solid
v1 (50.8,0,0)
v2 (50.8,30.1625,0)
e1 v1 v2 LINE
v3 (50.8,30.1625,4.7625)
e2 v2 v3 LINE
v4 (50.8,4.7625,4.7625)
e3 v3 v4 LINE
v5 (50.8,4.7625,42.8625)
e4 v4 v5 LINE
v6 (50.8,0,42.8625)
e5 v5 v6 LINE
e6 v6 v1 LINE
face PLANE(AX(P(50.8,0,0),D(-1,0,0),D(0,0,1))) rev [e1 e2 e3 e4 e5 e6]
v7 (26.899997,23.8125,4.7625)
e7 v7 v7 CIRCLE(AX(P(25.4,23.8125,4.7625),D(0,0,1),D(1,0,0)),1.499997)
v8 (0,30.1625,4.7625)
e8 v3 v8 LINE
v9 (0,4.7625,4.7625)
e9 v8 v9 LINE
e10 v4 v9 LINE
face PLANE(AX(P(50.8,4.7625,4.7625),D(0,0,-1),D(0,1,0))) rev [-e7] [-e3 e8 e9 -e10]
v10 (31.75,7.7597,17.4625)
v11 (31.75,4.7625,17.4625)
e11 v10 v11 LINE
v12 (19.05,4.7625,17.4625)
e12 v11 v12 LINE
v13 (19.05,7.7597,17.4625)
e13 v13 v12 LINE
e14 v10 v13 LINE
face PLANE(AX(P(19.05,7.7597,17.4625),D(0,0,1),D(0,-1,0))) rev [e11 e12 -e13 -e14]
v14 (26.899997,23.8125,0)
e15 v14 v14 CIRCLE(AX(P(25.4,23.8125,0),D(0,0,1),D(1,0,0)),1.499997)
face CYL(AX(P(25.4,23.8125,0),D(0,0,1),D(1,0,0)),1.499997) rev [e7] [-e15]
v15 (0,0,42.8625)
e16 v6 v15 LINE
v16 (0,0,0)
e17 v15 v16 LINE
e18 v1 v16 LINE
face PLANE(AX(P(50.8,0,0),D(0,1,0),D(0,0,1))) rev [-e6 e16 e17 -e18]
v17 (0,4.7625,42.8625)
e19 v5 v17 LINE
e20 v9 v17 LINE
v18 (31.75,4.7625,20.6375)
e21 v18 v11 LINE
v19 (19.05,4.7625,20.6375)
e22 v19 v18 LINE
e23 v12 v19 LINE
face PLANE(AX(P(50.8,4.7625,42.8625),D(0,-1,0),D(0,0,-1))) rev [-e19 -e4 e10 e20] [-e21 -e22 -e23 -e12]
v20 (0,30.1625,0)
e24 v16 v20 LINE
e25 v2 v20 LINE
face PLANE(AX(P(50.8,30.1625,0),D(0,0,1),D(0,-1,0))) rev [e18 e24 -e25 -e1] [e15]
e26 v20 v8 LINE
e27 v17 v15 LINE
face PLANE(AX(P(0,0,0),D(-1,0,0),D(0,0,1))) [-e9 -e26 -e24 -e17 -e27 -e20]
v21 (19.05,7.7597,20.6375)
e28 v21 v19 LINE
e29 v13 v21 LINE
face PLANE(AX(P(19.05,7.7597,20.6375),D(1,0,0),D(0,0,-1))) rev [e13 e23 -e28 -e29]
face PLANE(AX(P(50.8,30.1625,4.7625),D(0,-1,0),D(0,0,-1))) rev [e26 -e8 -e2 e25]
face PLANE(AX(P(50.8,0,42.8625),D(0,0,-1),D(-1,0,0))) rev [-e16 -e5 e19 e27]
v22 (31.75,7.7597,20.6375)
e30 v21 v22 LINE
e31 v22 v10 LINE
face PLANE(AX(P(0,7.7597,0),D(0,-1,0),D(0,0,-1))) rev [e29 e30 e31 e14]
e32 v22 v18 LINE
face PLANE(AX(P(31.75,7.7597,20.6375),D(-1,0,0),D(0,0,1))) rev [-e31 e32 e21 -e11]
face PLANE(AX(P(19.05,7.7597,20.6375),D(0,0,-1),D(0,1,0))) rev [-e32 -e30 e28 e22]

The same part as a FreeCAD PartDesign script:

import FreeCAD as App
import Part
import Sketcher
from FreeCAD import Vector
Q = App.Units.Quantity

doc = App.newDocument("Part")
body = doc.addObject("PartDesign::Body", "Body")

# Sketch on YZ plane
sketch1 = body.newObject("Sketcher::SketchObject", "Sketch")
sketch1.AttachmentSupport = (doc.getObject("YZ_Plane"), [""])
sketch1.MapMode = "FlatFace"
sketch1.addGeometry([
    Part.LineSegment(Vector(0, 42.9, 0), Vector(0, 0, 0)),  # 0
    Part.LineSegment(Vector(0, 0, 0), Vector(30.2, 0, 0)),  # 1
    Part.LineSegment(Vector(30.2, 0, 0), Vector(30.2, 4.8, 0)),  # 2
    Part.LineSegment(Vector(30.2, 4.8, 0), Vector(4.8, 4.8, 0)),  # 3
    Part.LineSegment(Vector(4.8, 4.8, 0), Vector(4.8, 42.9, 0)),  # 4
    Part.LineSegment(Vector(4.8, 42.9, 0), Vector(0, 42.9, 0)),  # 5
], False)
sketch1.addConstraint([
    Sketcher.Constraint("Coincident", 0, 2, 1, 1),
    Sketcher.Constraint("Coincident", 1, 2, 2, 1),
    Sketcher.Constraint("Coincident", 2, 2, 3, 1),
    Sketcher.Constraint("Coincident", 3, 2, 4, 1),
    Sketcher.Constraint("Coincident", 4, 2, 5, 1),
    Sketcher.Constraint("Coincident", 5, 2, 0, 1),
    Sketcher.Constraint("Vertical", 0),
    Sketcher.Constraint("Horizontal", 1),
    Sketcher.Constraint("Vertical", 2),
    Sketcher.Constraint("Horizontal", 3),
    Sketcher.Constraint("Vertical", 4),
    Sketcher.Constraint("Horizontal", 5),
    Sketcher.Constraint("Coincident", 0, 2, -1, 1),
    Sketcher.Constraint("Equal", 5, 2),
    Sketcher.Constraint("DistanceX", 3, 2, 3, 1, Q("1 in")),
    Sketcher.Constraint("DistanceY", 4, 1, 4, 2, Q("1.5 in")),
    Sketcher.Constraint("DistanceX", 1, 1, 1, 2, Q("1.1875 in")),
])
pad1 = body.newObject("PartDesign::Pad", "Pad")
pad1.Profile = sketch1
pad1.Length = Q("2 in")

# Sketch on XZ plane
sketch2 = body.newObject("Sketcher::SketchObject", "Sketch001")
sketch2.AttachmentSupport = (doc.getObject("XZ_Plane"), [""])
sketch2.MapMode = "FlatFace"
sketch2.AttachmentOffset = App.Placement(Vector(0, 0, -0.1875 * 25.4), App.Rotation())
sketch2.addGeometry([
    Part.LineSegment(Vector(19.1, 17.5, 0), Vector(19.1, 20.6, 0)),
    Part.LineSegment(Vector(19.1, 20.6, 0), Vector(31.8, 20.6, 0)),
    Part.LineSegment(Vector(31.8, 20.6, 0), Vector(31.8, 17.5, 0)),
    Part.LineSegment(Vector(31.8, 17.5, 0), Vector(19.1, 17.5, 0)),
], False)
sketch2.addConstraint([
    Sketcher.Constraint("Coincident", 0, 2, 1, 1),
    Sketcher.Constraint("Coincident", 1, 2, 2, 1),
    Sketcher.Constraint("Coincident", 2, 2, 3, 1),
    Sketcher.Constraint("Coincident", 3, 2, 0, 1),
    Sketcher.Constraint("Vertical", 0),
    Sketcher.Constraint("Horizontal", 1),
    Sketcher.Constraint("Vertical", 2),
    Sketcher.Constraint("Horizontal", 3),
    Sketcher.Constraint("DistanceX", 1, 1, 1, 2, Q("0.5 in")),
    Sketcher.Constraint("DistanceY", 0, 1, 0, 2, Q("0.125 in")),
    Sketcher.Constraint("DistanceX", -1, 1, 0, 2, Q("0.75 in")),
    Sketcher.Constraint("DistanceY", -1, 1, 0, 2, Q("0.8125 in")),
])
pad2 = body.newObject("PartDesign::Pad", "Pad001")
pad2.Profile = sketch2
pad2.Length = Q("0.118 in")
pad2.Reversed = True

# Sketch on XY plane
sketch3 = body.newObject("Sketcher::SketchObject", "Sketch002")
sketch3.AttachmentSupport = (doc.getObject("XY_Plane"), [""])
sketch3.MapMode = "FlatFace"
sketch3.AttachmentOffset = App.Placement(Vector(0, 0, 0.1875 * 25.4), App.Rotation())
sketch3.addGeometry(Part.Circle(Vector(25.4, 23.8, 0), Vector(0, 0, 1), 1.5), False)
sketch3.addConstraint([
    Sketcher.Constraint("DistanceX", -1, 1, 0, 3, Q("1 in")),
    Sketcher.Constraint("DistanceY", -1, 1, 0, 3, Q("0.9375 in")),
    Sketcher.Constraint("Diameter", 0, Q("2.999994 mm")),
])
pocket1 = body.newObject("PartDesign::Pocket", "Pocket")
pocket1.Profile = sketch3
pocket1.Type = "ThroughAll"

doc.recompute()
